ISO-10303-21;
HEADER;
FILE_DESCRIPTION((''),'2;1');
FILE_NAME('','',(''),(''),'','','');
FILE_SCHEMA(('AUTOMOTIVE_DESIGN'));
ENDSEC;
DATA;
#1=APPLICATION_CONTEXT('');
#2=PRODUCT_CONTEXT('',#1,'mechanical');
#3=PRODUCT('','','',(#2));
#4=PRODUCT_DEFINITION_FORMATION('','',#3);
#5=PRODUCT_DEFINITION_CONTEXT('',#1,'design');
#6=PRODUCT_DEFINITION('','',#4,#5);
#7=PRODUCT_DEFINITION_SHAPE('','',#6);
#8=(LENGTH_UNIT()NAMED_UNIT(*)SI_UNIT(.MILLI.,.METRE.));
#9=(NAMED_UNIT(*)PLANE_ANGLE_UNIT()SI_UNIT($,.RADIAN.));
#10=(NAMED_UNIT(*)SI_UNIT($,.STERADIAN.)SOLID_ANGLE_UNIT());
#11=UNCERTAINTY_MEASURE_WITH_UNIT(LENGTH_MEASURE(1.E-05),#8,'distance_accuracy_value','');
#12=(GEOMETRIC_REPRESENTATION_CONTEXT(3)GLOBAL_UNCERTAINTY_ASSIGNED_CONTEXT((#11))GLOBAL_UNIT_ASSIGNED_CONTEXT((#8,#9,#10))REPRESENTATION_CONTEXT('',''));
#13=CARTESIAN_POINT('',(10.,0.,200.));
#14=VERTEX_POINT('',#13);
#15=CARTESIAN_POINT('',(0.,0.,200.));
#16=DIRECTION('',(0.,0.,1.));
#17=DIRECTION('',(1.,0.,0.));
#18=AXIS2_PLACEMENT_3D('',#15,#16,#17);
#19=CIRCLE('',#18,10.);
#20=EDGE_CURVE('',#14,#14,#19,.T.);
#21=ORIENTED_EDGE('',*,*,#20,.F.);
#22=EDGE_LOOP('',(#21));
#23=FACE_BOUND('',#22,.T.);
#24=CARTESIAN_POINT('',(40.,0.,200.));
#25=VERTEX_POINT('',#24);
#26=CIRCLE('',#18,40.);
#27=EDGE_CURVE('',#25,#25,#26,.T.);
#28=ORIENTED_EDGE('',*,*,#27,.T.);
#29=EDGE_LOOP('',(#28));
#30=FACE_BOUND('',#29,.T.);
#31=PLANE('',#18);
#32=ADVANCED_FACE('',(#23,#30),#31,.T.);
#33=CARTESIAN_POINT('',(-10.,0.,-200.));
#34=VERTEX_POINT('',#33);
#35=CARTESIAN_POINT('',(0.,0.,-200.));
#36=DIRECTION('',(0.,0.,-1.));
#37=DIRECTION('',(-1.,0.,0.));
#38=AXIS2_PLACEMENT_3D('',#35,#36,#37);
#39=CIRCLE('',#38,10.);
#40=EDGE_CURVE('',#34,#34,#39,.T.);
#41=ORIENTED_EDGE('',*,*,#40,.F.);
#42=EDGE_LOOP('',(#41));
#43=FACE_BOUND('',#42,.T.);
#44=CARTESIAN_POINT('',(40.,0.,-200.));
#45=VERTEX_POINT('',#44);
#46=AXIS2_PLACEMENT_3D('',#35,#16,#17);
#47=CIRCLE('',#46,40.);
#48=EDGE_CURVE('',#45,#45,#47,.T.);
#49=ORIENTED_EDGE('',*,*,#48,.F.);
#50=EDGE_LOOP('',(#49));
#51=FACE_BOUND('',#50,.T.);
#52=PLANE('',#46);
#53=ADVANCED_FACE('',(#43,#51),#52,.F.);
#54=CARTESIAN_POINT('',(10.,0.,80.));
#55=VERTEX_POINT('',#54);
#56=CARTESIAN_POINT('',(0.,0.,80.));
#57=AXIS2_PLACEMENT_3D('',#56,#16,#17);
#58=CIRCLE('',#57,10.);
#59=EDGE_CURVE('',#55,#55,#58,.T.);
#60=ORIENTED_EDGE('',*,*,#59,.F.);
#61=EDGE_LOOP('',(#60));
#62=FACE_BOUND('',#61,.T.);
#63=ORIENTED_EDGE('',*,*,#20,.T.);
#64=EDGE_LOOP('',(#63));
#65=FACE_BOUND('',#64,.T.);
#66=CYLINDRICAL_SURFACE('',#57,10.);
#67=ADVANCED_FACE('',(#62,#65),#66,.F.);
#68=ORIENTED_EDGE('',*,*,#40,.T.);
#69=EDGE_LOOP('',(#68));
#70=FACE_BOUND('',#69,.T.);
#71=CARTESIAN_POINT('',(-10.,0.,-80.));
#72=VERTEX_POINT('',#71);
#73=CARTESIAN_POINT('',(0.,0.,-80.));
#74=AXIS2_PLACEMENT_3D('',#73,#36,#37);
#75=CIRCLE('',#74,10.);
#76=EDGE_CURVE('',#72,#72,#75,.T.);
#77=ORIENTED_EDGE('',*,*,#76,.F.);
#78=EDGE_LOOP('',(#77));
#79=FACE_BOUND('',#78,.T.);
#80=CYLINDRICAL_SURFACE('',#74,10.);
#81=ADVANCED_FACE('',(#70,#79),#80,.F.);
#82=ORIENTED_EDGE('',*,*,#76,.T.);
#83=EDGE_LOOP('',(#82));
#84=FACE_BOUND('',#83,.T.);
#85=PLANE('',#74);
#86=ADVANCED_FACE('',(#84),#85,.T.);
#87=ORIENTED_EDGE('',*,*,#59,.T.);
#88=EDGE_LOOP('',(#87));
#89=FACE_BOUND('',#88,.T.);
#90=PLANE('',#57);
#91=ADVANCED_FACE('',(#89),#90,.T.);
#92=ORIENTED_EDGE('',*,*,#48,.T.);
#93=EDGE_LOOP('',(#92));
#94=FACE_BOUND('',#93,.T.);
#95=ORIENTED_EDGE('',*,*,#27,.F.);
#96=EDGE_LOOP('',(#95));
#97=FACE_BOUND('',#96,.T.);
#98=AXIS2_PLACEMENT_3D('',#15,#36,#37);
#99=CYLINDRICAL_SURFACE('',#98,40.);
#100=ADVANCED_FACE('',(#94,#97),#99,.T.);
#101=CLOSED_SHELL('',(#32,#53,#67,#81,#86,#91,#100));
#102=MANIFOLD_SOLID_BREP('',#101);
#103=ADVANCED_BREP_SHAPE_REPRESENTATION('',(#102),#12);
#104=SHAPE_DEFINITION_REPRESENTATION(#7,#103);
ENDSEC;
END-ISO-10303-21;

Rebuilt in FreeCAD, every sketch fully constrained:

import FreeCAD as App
import Part
import Sketcher

V = App.Vector

doc = App.newDocument("Part")
body = doc.addObject("PartDesign::Body", "Body")

sketch1 = body.newObject("Sketcher::SketchObject", "Sketch")
sketch1.AttachmentSupport = (doc.getObject("XY_Plane"), [""])
sketch1.MapMode = "FlatFace"
sketch1.addGeometry(Part.Circle(V(0, 0, 0), V(0, 0, 1), 40), False)
sketch1.addConstraint([
    Sketcher.Constraint("Coincident", 0, 3, -1, 1),
    Sketcher.Constraint("Diameter", 0, 80.0),
])
pad1 = body.newObject("PartDesign::Pad", "Pad")
pad1.Profile = sketch1
pad1.Length = 400
pad1.Midplane = True

sketch2 = body.newObject("Sketcher::SketchObject", "Sketch001")
sketch2.AttachmentSupport = (doc.getObject("XY_Plane"), [""])
sketch2.MapMode = "FlatFace"
sketch2.AttachmentOffset = App.Placement(V(0, 0, 200), App.Rotation())
sketch2.addGeometry(Part.Circle(V(0, 0, 0), V(0, 0, 1), 10), False)
sketch2.addConstraint([
    Sketcher.Constraint("Coincident", 0, 3, -1, 1),
    Sketcher.Constraint("Diameter", 0, 20.0),
])
pocket1 = body.newObject("PartDesign::Pocket", "Pocket")
pocket1.Profile = sketch2
pocket1.Length = 120

sketch3 = body.newObject("Sketcher::SketchObject", "Sketch002")
sketch3.AttachmentSupport = (doc.getObject("XY_Plane"), [""])
sketch3.MapMode = "FlatFace"
sketch3.AttachmentOffset = App.Placement(V(0, 0, -80), App.Rotation())
sketch3.addGeometry(Part.Circle(V(0, 0, 0), V(0, 0, 1), 10), False)
sketch3.addConstraint([
    Sketcher.Constraint("Coincident", 0, 3, -1, 1),
    Sketcher.Constraint("Diameter", 0, 20.0),
])
pocket2 = body.newObject("PartDesign::Pocket", "Pocket001")
pocket2.Profile = sketch3
pocket2.Length = 120

doc.recompute()
